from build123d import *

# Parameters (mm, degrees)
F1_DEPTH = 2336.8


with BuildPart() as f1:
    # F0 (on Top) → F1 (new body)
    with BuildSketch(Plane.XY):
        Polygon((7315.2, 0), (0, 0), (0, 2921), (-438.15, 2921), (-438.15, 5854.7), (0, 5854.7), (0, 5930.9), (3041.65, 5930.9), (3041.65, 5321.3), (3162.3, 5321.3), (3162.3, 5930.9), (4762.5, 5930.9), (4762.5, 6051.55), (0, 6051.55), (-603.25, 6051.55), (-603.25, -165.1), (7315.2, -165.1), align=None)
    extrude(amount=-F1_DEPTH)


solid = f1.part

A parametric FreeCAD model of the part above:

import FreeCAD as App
import Part
import Sketcher
from FreeCAD import Vector
Q = App.Units.Quantity


def add_polygon(sketch, points):
    """Adds a closed chain of lines whose ends are joined by coincident constraints."""
    first, n = sketch.GeometryCount, len(points)
    for a, b in zip(points, points[1:] + points[:1]):
        sketch.addGeometry(Part.LineSegment(App.Vector(*a, 0), App.Vector(*b, 0)), False)
    for i in range(n):
        sketch.addConstraint(Sketcher.Constraint("Coincident", first + i, 2, first + (i + 1) % n, 1))

doc = App.newDocument("Part")
body = doc.addObject("PartDesign::Body", "Body")

sketch1 = doc.addObject("Sketcher::SketchObject", "Sketch")
body.addObject(sketch1)
sketch1.AttachmentSupport = (doc.XY_Plane, [""])
sketch1.MapMode = "FlatFace"
add_polygon(sketch1, [(7315, 0), (0, 0), (0, 2921), (-438, 2921), (-438, 5855), (0, 5855), (0, 5931), (3042, 5931), (3042, 5321), (3162, 5321), (3162, 5931), (4762, 5931), (4762, 6052), (-603, 6052), (-603, -165), (7315, -165)])
sketch1.addConstraint(Sketcher.Constraint("Horizontal", 0))
sketch1.addConstraint(Sketcher.Constraint("Vertical", 1))
sketch1.addConstraint(Sketcher.Constraint("Horizontal", 2))
sketch1.addConstraint(Sketcher.Constraint("Vertical", 3))
sketch1.addConstraint(Sketcher.Constraint("Horizontal", 4))
sketch1.addConstraint(Sketcher.Constraint("Vertical", 5))
sketch1.addConstraint(Sketcher.Constraint("Horizontal", 6))
sketch1.addConstraint(Sketcher.Constraint("Vertical", 7))
sketch1.addConstraint(Sketcher.Constraint("Horizontal", 8))
sketch1.addConstraint(Sketcher.Constraint("Vertical", 9))
sketch1.addConstraint(Sketcher.Constraint("Horizontal", 10))
sketch1.addConstraint(Sketcher.Constraint("Vertical", 11))
sketch1.addConstraint(Sketcher.Constraint("Horizontal", 12))
sketch1.addConstraint(Sketcher.Constraint("Vertical", 13))
sketch1.addConstraint(Sketcher.Constraint("Horizontal", 14))
sketch1.addConstraint(Sketcher.Constraint("Vertical", 15))
sketch1.addConstraint(Sketcher.Constraint("Coincident", 0, 2, -1, 1))
sketch1.addConstraint(Sketcher.Constraint("PointOnObject", 4, 2, -2))
sketch1.addConstraint(Sketcher.Constraint("Horizontal", 6, 2, 9, 2))
sketch1.addConstraint(Sketcher.Constraint("Equal", 8, 11))
sketch1.addConstraint(Sketcher.Constraint("DistanceX", 0, 2, 0, 1, Q("288 in")))
sketch1.addConstraint(Sketcher.Constraint("DistanceX", 10, 1, 10, 2, Q("63 in")))
sketch1.addConstraint(Sketcher.Constraint("DistanceY", 1, 1, 1, 2, Q("115 in")))
sketch1.addConstraint(Sketcher.Constraint("DistanceY", 5, 1, 5, 2, Q("3 in")))
sketch1.addConstraint(Sketcher.Constraint("DistanceY", 7, 2, 7, 1, Q("24 in")))
sketch1.addConstraint(Sketcher.Constraint("DistanceY", 3, 1, 3, 2, Q("115.5 in")))
sketch1.addConstraint(Sketcher.Constraint("DistanceY", 15, 1, 15, 2, Q("6.5 in")))
sketch1.addConstraint(Sketcher.Constraint("DistanceX", 3, 2, 6, 2, Q("137 in")))
sketch1.addConstraint(Sketcher.Constraint("DistanceX", 2, 2, 2, 1, Q("17.25 in")))
sketch1.addConstraint(Sketcher.Constraint("DistanceX", 8, 1, 8, 2, Q("4.75 in")))
sketch1.addConstraint(Sketcher.Constraint("DistanceX", 12, 2, 12, 1, Q("211.25 in")))
pad1 = doc.addObject("PartDesign::Pad", "Pad")
body.addObject(pad1)
pad1.Profile = sketch1
pad1.Length = Q("92 in")
pad1.Reversed = True

doc.recompute()
